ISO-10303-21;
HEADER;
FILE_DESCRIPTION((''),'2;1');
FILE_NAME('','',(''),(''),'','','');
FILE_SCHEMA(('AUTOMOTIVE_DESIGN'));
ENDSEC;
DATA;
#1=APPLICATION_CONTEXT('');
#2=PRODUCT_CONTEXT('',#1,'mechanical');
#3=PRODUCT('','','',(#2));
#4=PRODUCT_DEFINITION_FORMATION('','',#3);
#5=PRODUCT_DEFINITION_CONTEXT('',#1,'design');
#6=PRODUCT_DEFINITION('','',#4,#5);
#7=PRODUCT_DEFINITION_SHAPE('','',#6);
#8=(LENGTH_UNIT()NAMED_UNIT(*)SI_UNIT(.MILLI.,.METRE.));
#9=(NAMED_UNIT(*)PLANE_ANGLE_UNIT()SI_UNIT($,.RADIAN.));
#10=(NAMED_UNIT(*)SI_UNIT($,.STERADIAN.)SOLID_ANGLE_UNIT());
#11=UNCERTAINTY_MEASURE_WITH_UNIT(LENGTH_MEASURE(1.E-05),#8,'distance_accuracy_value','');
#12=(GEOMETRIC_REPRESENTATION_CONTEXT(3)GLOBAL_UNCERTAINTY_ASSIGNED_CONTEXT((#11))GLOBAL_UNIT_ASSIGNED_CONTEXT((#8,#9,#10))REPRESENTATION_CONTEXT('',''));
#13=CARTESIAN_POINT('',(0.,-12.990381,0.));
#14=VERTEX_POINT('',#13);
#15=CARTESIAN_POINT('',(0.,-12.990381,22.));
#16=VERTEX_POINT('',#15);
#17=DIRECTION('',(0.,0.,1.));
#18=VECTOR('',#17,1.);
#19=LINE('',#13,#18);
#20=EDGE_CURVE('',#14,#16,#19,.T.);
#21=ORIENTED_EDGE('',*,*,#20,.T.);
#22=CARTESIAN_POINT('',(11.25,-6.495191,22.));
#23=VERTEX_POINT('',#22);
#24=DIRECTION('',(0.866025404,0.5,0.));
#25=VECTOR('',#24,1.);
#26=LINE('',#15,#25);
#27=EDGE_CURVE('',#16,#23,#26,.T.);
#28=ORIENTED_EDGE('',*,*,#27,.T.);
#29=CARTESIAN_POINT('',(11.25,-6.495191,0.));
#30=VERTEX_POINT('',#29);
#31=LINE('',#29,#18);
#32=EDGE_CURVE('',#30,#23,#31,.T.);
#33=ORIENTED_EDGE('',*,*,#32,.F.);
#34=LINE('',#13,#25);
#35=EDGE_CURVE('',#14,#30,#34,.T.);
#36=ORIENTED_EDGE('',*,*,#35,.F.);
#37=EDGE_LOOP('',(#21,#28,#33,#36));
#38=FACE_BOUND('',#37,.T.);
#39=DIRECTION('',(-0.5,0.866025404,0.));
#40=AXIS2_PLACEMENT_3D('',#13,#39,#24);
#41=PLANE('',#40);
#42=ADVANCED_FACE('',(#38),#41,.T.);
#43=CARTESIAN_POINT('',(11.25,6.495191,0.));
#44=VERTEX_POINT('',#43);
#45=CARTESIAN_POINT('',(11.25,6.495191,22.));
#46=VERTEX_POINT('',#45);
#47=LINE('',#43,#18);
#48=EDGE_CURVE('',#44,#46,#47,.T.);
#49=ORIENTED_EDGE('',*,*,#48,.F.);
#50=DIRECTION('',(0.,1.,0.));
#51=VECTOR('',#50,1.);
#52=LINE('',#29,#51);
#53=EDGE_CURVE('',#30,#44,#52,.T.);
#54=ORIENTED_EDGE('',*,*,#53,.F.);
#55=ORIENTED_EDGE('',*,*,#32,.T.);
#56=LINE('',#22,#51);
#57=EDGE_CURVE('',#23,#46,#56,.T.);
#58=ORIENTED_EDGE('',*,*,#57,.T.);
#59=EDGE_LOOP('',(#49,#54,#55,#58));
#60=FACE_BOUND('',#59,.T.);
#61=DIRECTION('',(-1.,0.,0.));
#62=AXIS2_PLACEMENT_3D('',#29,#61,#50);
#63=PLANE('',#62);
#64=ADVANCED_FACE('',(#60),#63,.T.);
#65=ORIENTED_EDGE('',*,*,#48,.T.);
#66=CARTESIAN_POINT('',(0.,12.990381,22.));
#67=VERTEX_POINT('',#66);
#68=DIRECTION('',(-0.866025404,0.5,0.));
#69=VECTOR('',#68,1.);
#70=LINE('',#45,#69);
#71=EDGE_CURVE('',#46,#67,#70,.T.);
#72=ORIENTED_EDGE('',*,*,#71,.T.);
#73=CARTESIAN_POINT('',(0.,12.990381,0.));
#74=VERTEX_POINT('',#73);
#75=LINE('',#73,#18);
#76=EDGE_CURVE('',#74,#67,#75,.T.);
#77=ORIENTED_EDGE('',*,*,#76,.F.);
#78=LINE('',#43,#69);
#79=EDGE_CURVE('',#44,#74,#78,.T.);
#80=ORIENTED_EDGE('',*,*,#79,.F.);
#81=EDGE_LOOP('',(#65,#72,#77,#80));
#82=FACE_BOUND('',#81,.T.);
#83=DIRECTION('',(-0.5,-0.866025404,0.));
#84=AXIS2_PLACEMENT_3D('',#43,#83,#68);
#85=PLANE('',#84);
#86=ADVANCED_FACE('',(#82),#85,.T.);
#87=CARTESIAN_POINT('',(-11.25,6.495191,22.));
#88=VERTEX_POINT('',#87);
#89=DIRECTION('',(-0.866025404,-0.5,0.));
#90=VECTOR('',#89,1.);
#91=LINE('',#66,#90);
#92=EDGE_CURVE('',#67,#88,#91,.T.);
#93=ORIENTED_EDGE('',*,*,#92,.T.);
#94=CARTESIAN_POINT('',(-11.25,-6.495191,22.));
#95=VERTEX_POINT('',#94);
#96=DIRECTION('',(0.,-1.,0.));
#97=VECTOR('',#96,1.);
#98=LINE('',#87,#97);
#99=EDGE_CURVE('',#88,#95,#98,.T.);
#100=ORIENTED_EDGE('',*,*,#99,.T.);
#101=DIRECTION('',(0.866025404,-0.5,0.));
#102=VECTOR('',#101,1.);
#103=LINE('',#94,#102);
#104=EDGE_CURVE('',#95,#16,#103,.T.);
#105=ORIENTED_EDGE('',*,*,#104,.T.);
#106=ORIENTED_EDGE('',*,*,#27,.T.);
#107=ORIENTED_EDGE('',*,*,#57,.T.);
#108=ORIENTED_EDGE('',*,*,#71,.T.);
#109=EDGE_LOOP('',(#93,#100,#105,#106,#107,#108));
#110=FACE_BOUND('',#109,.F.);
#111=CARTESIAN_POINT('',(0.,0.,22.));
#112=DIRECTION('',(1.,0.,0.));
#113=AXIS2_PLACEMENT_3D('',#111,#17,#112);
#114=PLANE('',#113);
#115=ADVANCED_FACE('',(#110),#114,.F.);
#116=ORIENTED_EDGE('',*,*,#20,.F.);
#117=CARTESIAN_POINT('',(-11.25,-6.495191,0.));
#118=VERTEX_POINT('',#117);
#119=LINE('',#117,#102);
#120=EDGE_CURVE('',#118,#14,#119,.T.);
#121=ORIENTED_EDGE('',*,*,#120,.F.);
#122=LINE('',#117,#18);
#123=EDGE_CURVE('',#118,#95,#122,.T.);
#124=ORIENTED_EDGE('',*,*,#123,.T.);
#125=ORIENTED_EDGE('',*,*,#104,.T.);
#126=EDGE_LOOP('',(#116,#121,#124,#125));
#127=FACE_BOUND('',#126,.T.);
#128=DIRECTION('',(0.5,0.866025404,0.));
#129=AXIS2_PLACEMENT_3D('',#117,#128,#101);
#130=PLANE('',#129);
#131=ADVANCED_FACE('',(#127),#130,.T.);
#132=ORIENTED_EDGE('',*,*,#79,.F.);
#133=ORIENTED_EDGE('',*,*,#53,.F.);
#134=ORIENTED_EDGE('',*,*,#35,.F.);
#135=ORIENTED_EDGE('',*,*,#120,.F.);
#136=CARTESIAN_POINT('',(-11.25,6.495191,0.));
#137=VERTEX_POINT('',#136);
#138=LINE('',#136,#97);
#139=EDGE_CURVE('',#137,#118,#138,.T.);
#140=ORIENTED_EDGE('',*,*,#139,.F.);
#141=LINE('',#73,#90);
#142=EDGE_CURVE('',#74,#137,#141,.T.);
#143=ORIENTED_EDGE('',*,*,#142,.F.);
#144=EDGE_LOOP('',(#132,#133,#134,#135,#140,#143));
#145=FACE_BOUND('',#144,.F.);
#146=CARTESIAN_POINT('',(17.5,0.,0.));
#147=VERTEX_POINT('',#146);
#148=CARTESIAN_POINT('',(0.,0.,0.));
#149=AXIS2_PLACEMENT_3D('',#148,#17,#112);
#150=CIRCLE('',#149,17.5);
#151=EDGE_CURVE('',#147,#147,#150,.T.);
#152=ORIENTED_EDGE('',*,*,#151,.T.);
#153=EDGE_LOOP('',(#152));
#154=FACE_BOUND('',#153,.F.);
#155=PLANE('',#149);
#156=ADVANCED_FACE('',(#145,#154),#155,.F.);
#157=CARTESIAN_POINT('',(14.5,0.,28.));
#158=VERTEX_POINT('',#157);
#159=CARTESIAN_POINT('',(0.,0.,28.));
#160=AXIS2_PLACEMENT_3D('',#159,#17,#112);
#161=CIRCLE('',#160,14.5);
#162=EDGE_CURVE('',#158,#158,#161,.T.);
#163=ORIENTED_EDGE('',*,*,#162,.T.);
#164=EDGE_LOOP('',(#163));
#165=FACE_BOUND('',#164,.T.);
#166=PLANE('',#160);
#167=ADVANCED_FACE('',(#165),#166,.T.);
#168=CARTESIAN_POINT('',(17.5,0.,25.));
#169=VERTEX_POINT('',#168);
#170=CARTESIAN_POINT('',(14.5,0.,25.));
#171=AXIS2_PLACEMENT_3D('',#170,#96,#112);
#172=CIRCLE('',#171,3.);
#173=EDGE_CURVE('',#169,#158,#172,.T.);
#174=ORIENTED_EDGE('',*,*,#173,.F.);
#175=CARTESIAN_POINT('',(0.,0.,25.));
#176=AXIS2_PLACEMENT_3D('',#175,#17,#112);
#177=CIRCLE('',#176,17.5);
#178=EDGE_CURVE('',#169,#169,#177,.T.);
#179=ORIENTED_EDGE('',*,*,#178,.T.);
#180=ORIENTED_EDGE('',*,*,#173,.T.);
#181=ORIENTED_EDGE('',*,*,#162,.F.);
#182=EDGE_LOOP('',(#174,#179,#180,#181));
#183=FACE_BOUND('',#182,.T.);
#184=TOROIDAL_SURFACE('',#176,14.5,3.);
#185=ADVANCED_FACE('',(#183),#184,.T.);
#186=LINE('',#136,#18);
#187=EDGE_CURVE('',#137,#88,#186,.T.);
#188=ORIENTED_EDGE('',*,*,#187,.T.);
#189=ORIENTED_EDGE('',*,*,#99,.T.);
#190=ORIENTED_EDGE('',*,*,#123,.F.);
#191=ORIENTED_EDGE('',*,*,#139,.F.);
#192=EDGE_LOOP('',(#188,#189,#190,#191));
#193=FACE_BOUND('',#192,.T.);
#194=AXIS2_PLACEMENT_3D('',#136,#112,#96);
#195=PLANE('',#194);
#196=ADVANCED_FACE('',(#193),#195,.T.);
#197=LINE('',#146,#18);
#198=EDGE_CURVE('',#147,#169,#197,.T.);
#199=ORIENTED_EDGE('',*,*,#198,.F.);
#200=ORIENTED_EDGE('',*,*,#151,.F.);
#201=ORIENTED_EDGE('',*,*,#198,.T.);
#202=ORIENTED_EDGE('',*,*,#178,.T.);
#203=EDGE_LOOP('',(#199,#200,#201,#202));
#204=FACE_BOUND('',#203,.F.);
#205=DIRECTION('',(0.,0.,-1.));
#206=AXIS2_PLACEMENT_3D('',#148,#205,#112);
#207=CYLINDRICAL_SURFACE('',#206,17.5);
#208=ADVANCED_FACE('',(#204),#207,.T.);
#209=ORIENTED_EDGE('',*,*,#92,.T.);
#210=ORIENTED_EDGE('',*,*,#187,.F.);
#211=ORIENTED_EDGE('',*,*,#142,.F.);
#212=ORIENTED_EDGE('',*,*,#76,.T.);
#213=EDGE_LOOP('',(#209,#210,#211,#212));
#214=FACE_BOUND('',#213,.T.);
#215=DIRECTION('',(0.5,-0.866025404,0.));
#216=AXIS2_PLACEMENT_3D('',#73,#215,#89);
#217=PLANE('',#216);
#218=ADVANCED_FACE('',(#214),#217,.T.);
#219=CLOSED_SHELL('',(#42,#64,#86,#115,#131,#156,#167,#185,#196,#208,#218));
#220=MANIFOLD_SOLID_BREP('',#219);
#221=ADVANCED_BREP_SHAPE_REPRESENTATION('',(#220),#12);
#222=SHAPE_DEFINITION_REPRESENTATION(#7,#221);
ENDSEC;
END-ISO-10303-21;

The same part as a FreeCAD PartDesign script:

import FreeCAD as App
import Part
import Sketcher

V = App.Vector
Q = App.Units.Quantity


def edges_at(feature, points):
    """Names of the edges that pass closest to the given points."""
    edges = feature.Shape.Edges
    near = lambda p: min(range(len(edges)), key=lambda i: edges[i].distToShape(Part.Vertex(*p))[0])
    return sorted({f"Edge{near(p) + 1}" for p in points})


def add_polygon(sketch, points):
    """Adds a closed chain of lines whose ends are joined by coincident constraints."""
    first, n = sketch.GeometryCount, len(points)
    for a, b in zip(points, points[1:] + points[:1]):
        sketch.addGeometry(Part.LineSegment(App.Vector(*a, 0), App.Vector(*b, 0)), False)
    for i in range(n):
        sketch.addConstraint(Sketcher.Constraint("Coincident", first + i, 2, first + (i + 1) % n, 1))

doc = App.newDocument("Part")
body = doc.addObject("PartDesign::Body", "Body")

sketch1 = body.newObject("Sketcher::SketchObject", "Sketch")
sketch1.AttachmentSupport = (doc.getObject("XY_Plane"), [""])
sketch1.MapMode = "FlatFace"
sketch1.addGeometry(Part.Circle(V(0, 0, 0), V(0, 0, 1), 17.5), False)
sketch1.addConstraint([
    Sketcher.Constraint("Coincident", 0, 3, -1, 1),
    Sketcher.Constraint("Diameter", 0, Q("35 mm")),
])
pad1 = body.newObject("PartDesign::Pad", "Pad")
pad1.Profile = sketch1
pad1.Length = 28

sketch2 = body.newObject("Sketcher::SketchObject", "Sketch001")
sketch2.AttachmentSupport = (doc.getObject("XY_Plane"), [""])
sketch2.MapMode = "FlatFace"
add_polygon(sketch2, [(11.25, 6.495191), (0, 12.990381), (-11.25, 6.495191), (-11.25, -6.495191), (0, -12.990381), (11.25, -6.495191)])
sketch2.addConstraint([
    Sketcher.Constraint("Vertical", 2),
    Sketcher.Constraint("Vertical", 5),
    Sketcher.Constraint("Symmetric", 0, 2, 3, 2, -1, 1),
    Sketcher.Constraint("Symmetric", 1, 2, 4, 2, -1, 1),
    Sketcher.Constraint("PointOnObject", 0, 2, -2),
    Sketcher.Constraint("Parallel", 0, 3),
    Sketcher.Constraint("Horizontal", 2, 2, 4, 2),
    Sketcher.Constraint("Angle", 0, Q("150 deg")),
    Sketcher.Constraint("DistanceX", 2, 2, 4, 2, Q("22.5 mm")),
    Sketcher.Constraint("DistanceY", 2, 2, 2, 1, Q("12.990381 mm")),
])
pocket1 = body.newObject("PartDesign::Pocket", "Pocket")
pocket1.Profile = sketch2
pocket1.Length = 22
pocket1.Reversed = True
doc.recompute()

fillet = body.newObject("PartDesign::Fillet", "Fillet")
fillet.Base = (pocket1, edges_at(pocket1, [(-17.5, 0, 28)]))
fillet.Radius = 3

doc.recompute()
